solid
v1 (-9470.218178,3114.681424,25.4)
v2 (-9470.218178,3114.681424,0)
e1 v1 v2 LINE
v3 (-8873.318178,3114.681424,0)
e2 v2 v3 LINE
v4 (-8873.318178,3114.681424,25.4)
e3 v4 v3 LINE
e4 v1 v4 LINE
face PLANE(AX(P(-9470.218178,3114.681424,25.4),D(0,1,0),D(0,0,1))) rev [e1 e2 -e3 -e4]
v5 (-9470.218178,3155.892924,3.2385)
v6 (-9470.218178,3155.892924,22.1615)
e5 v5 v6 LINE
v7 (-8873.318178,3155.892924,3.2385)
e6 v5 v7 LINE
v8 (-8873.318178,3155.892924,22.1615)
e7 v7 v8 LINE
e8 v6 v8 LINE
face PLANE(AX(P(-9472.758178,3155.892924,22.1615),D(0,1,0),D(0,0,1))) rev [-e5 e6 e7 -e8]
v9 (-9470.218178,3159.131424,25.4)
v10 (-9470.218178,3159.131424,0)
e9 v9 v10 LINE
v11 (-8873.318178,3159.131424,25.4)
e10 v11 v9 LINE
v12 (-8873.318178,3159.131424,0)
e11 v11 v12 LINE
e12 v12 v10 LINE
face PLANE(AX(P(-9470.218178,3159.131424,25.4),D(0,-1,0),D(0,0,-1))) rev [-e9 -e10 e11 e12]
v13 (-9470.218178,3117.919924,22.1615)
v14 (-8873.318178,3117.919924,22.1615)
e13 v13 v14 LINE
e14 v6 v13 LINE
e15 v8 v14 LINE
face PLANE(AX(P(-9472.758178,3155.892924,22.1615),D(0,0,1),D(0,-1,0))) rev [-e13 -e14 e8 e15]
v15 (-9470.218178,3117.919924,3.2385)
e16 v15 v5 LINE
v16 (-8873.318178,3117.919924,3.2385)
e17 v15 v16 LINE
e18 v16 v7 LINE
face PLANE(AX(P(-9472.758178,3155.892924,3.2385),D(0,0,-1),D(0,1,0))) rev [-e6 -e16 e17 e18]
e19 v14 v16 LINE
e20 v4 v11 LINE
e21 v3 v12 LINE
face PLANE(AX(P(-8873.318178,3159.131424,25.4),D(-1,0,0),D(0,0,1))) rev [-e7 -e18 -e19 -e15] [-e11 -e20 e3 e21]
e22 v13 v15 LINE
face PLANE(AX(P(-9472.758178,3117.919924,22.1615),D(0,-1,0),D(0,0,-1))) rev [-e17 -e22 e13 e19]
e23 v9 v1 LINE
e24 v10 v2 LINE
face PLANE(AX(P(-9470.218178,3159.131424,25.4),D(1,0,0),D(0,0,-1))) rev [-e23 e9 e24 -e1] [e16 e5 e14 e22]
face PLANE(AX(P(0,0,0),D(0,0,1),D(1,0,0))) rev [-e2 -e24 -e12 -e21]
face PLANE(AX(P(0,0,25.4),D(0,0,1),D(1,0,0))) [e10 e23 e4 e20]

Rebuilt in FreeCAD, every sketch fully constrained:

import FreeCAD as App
import Part
import Sketcher

V = App.Vector
Q = App.Units.Quantity

doc = App.newDocument("Part")
body = doc.addObject("PartDesign::Body", "Body")

# Sketch on XY plane
sketch1 = doc.addObject("Sketcher::SketchObject", "Sketch")
body.addObject(sketch1)
sketch1.AttachmentSupport = (doc.XY_Plane, [""])
sketch1.MapMode = "FlatFace"
sketch1.addGeometry(Part.LineSegment(V(-9470.218178, 3159.131424, 0), V(-9470.218178, 3114.681424, 0)), False)
sketch1.addGeometry(Part.LineSegment(V(-9470.218178, 3114.681424, 0), V(-8873.318178, 3114.681424, 0)), False)
sketch1.addGeometry(Part.LineSegment(V(-8873.318178, 3114.681424, 0), V(-8873.318178, 3159.131424, 0)), False)
sketch1.addGeometry(Part.LineSegment(V(-8873.318178, 3159.131424, 0), V(-9470.218178, 3159.131424, 0)), False)
sketch1.addConstraint(Sketcher.Constraint("Coincident", 0, 2, 1, 1))
sketch1.addConstraint(Sketcher.Constraint("Coincident", 1, 2, 2, 1))
sketch1.addConstraint(Sketcher.Constraint("Coincident", 2, 2, 3, 1))
sketch1.addConstraint(Sketcher.Constraint("Coincident", 3, 2, 0, 1))
sketch1.addConstraint(Sketcher.Constraint("Vertical", 0))
sketch1.addConstraint(Sketcher.Constraint("Horizontal", 1))
sketch1.addConstraint(Sketcher.Constraint("Vertical", 2))
sketch1.addConstraint(Sketcher.Constraint("Horizontal", 3))
sketch1.addConstraint(Sketcher.Constraint("DistanceX", 1, 1, 1, 2, Q("23.5 in")))
sketch1.addConstraint(Sketcher.Constraint("DistanceY", 0, 2, 0, 1, Q("1.75 in")))
sketch1.addConstraint(Sketcher.Constraint("DistanceX", 0, 2, -1, 1, Q("9470.218178 mm")))
sketch1.addConstraint(Sketcher.Constraint("DistanceY", -1, 1, 0, 2, Q("3114.681424 mm")))
pad1 = doc.addObject("PartDesign::Pad", "Pad")
body.addObject(pad1)
pad1.Profile = sketch1
pad1.Length = Q("1 in")

# Sketch on YZ plane
sketch2 = doc.addObject("Sketcher::SketchObject", "Sketch001")
body.addObject(sketch2)
sketch2.AttachmentSupport = (doc.YZ_Plane, [""])
sketch2.MapMode = "FlatFace"
sketch2.AttachmentOffset = App.Placement(V(0, 0, -8873.318178), App.Rotation())
sketch2.addGeometry(Part.LineSegment(V(3155.892924, 22.1615, 0), V(3117.919924, 22.1615, 0)), False)
sketch2.addGeometry(Part.LineSegment(V(3117.919924, 22.1615, 0), V(3117.919924, 3.2385, 0)), False)
sketch2.addGeometry(Part.LineSegment(V(3117.919924, 3.2385, 0), V(3155.892924, 3.2385, 0)), False)
sketch2.addGeometry(Part.LineSegment(V(3155.892924, 3.2385, 0), V(3155.892924, 22.1615, 0)), False)
sketch2.addConstraint(Sketcher.Constraint("Coincident", 0, 2, 1, 1))
sketch2.addConstraint(Sketcher.Constraint("Coincident", 1, 2, 2, 1))
sketch2.addConstraint(Sketcher.Constraint("Coincident", 2, 2, 3, 1))
sketch2.addConstraint(Sketcher.Constraint("Coincident", 3, 2, 0, 1))
sketch2.addConstraint(Sketcher.Constraint("Horizontal", 0))
sketch2.addConstraint(Sketcher.Constraint("Vertical", 1))
sketch2.addConstraint(Sketcher.Constraint("Horizontal", 2))
sketch2.addConstraint(Sketcher.Constraint("Vertical", 3))
sketch2.addConstraint(Sketcher.Constraint("DistanceX", 0, 2, 0, 1, Q("1.495 in")))
sketch2.addConstraint(Sketcher.Constraint("DistanceY", 1, 2, 1, 1, Q("0.745 in")))
sketch2.addConstraint(Sketcher.Constraint("DistanceY", -1, 1, 0, 2, Q("0.8725 in")))
sketch2.addConstraint(Sketcher.Constraint("DistanceX", -1, 1, 0, 2, Q("3117.919924 mm")))
pocket1 = doc.addObject("PartDesign::Pocket", "Pocket")
body.addObject(pocket1)
pocket1.Profile = sketch2
pocket1.Length = Q("23.6 in")

doc.recompute()
